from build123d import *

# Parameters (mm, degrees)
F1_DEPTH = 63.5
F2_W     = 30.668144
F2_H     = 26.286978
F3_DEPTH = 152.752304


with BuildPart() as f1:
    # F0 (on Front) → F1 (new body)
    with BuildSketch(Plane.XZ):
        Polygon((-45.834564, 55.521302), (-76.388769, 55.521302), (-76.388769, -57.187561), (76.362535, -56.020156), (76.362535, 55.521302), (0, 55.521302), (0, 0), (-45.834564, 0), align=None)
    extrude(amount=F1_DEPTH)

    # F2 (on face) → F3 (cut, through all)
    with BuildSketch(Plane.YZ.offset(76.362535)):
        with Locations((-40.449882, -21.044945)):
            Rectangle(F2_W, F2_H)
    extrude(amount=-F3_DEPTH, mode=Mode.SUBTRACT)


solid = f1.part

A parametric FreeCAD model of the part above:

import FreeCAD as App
import Part
import Sketcher

V = App.Vector
Q = App.Units.Quantity

doc = App.newDocument("Part")
body = doc.addObject("PartDesign::Body", "Body")

# Sketch on XZ plane
sketch1 = body.newObject("Sketcher::SketchObject", "Sketch")
sketch1.AttachmentSupport = (doc.getObject("XZ_Plane"), [""])
sketch1.MapMode = "FlatFace"
sketch1.addGeometry(Part.LineSegment(V(-46, 56, 0), V(-76, 56, 0)), False)
sketch1.addGeometry(Part.LineSegment(V(-76, 56, 0), V(-76, -57, 0)), False)
sketch1.addGeometry(Part.LineSegment(V(-76, -57, 0), V(76, -56, 0)), False)
sketch1.addGeometry(Part.LineSegment(V(76, -56, 0), V(76, 56, 0)), False)
sketch1.addGeometry(Part.LineSegment(V(76, 56, 0), V(0, 56, 0)), False)
sketch1.addGeometry(Part.LineSegment(V(0, 56, 0), V(0, 0, 0)), False)
sketch1.addGeometry(Part.LineSegment(V(0, 0, 0), V(-46, 0, 0)), False)
sketch1.addGeometry(Part.LineSegment(V(-46, 0, 0), V(-46, 56, 0)), False)
sketch1.addConstraint(Sketcher.Constraint("Coincident", 0, 2, 1, 1))
sketch1.addConstraint(Sketcher.Constraint("Coincident", 1, 2, 2, 1))
sketch1.addConstraint(Sketcher.Constraint("Coincident", 2, 2, 3, 1))
sketch1.addConstraint(Sketcher.Constraint("Coincident", 3, 2, 4, 1))
sketch1.addConstraint(Sketcher.Constraint("Coincident", 4, 2, 5, 1))
sketch1.addConstraint(Sketcher.Constraint("Coincident", 5, 2, 6, 1))
sketch1.addConstraint(Sketcher.Constraint("Coincident", 6, 2, 7, 1))
sketch1.addConstraint(Sketcher.Constraint("Coincident", 7, 2, 0, 1))
sketch1.addConstraint(Sketcher.Constraint("Horizontal", 0))
sketch1.addConstraint(Sketcher.Constraint("Vertical", 1))
sketch1.addConstraint(Sketcher.Constraint("Vertical", 3))
sketch1.addConstraint(Sketcher.Constraint("Horizontal", 4))
sketch1.addConstraint(Sketcher.Constraint("Vertical", 5))
sketch1.addConstraint(Sketcher.Constraint("Horizontal", 6))
sketch1.addConstraint(Sketcher.Constraint("Vertical", 7))
sketch1.addConstraint(Sketcher.Constraint("Coincident", 5, 2, -1, 1))
sketch1.addConstraint(Sketcher.Constraint("Horizontal", 0, 2, 3, 2))
sketch1.addConstraint(Sketcher.Constraint("DistanceY", 3, 1, 3, 2, 111.541458))
sketch1.addConstraint(Sketcher.Constraint("DistanceX", 6, 2, 3, 2, 122.197099))
sketch1.addConstraint(Sketcher.Constraint("DistanceX", 0, 2, 0, 1, 30.554205))
sketch1.addConstraint(Sketcher.Constraint("DistanceX", 4, 2, 4, 1, 76.362535))
sketch1.addConstraint(Sketcher.Constraint("DistanceY", 1, 2, 1, 1, 112.708863))
sketch1.addConstraint(Sketcher.Constraint("DistanceY", 5, 2, 5, 1, 55.521302))
pad1 = body.newObject("PartDesign::Pad", "Pad")
pad1.Profile = sketch1
pad1.Length = Q("2.5 in")

# Sketch on YZ plane
sketch2 = body.newObject("Sketcher::SketchObject", "Sketch001")
sketch2.AttachmentSupport = (doc.getObject("YZ_Plane"), [""])
sketch2.MapMode = "FlatFace"
sketch2.AttachmentOffset = App.Placement(V(0, 0, 76.362535), App.Rotation())
sketch2.addGeometry(Part.LineSegment(V(-56, -8, 0), V(-56, -34, 0)), False)
sketch2.addGeometry(Part.LineSegment(V(-56, -34, 0), V(-25, -34, 0)), False)
sketch2.addGeometry(Part.LineSegment(V(-25, -34, 0), V(-25, -8, 0)), False)
sketch2.addGeometry(Part.LineSegment(V(-25, -8, 0), V(-56, -8, 0)), False)
sketch2.addConstraint(Sketcher.Constraint("Coincident", 0, 2, 1, 1))
sketch2.addConstraint(Sketcher.Constraint("Coincident", 1, 2, 2, 1))
sketch2.addConstraint(Sketcher.Constraint("Coincident", 2, 2, 3, 1))
sketch2.addConstraint(Sketcher.Constraint("Coincident", 3, 2, 0, 1))
sketch2.addConstraint(Sketcher.Constraint("Vertical", 0))
sketch2.addConstraint(Sketcher.Constraint("Horizontal", 1))
sketch2.addConstraint(Sketcher.Constraint("Vertical", 2))
sketch2.addConstraint(Sketcher.Constraint("Horizontal", 3))
sketch2.addConstraint(Sketcher.Constraint("DistanceY", 0, 2, 0, 1, 26.286978))
sketch2.addConstraint(Sketcher.Constraint("DistanceX", 1, 1, 1, 2, 30.668144))
sketch2.addConstraint(Sketcher.Constraint("DistanceX", 1, 2, -1, 1, 25.11581))
sketch2.addConstraint(Sketcher.Constraint("DistanceY", 0, 2, -1, 1, 34.188434))
pocket1 = body.newObject("PartDesign::Pocket", "Pocket")
pocket1.Profile = sketch2
pocket1.Type = "ThroughAll"

doc.recompute()
